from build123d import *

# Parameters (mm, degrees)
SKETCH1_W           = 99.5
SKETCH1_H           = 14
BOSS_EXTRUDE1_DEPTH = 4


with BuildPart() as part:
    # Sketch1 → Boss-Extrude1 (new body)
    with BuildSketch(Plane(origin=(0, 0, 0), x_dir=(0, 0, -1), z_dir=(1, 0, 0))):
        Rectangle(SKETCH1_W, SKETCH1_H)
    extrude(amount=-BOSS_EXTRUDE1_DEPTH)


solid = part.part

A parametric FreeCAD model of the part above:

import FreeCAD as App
import Part
import Sketcher

V = App.Vector
Q = App.Units.Quantity

doc = App.newDocument("Part")
body = doc.addObject("PartDesign::Body", "Body")

sketch1 = body.newObject("Sketcher::SketchObject", "Sketch")
sketch1.AttachmentSupport = (doc.getObject("YZ_Plane"), [""])
sketch1.MapMode = "FlatFace"
sketch1.addGeometry([
    Part.LineSegment(V(7, 50, 0), V(-7, 50, 0)),
    Part.LineSegment(V(-7, 50, 0), V(-7, -50, 0)),
    Part.LineSegment(V(-7, -50, 0), V(7, -50, 0)),
    Part.LineSegment(V(7, -50, 0), V(7, 50, 0)),
], False)
sketch1.addConstraint([
    Sketcher.Constraint("Coincident", 0, 2, 1, 1),
    Sketcher.Constraint("Coincident", 1, 2, 2, 1),
    Sketcher.Constraint("Coincident", 2, 2, 3, 1),
    Sketcher.Constraint("Coincident", 3, 2, 0, 1),
    Sketcher.Constraint("Horizontal", 0),
    Sketcher.Constraint("Vertical", 1),
    Sketcher.Constraint("Horizontal", 2),
    Sketcher.Constraint("Vertical", 3),
    Sketcher.Constraint("Symmetric", 0, 2, 2, 2, -1, 1),
    Sketcher.Constraint("DistanceX", 0, 2, 0, 1, Q("14 mm")),
    Sketcher.Constraint("DistanceY", 1, 2, 1, 1, Q("99.5 mm")),
])
pad1 = body.newObject("PartDesign::Pad", "Pad")
pad1.Profile = sketch1
pad1.Length = 4
pad1.Reversed = True

doc.recompute()
